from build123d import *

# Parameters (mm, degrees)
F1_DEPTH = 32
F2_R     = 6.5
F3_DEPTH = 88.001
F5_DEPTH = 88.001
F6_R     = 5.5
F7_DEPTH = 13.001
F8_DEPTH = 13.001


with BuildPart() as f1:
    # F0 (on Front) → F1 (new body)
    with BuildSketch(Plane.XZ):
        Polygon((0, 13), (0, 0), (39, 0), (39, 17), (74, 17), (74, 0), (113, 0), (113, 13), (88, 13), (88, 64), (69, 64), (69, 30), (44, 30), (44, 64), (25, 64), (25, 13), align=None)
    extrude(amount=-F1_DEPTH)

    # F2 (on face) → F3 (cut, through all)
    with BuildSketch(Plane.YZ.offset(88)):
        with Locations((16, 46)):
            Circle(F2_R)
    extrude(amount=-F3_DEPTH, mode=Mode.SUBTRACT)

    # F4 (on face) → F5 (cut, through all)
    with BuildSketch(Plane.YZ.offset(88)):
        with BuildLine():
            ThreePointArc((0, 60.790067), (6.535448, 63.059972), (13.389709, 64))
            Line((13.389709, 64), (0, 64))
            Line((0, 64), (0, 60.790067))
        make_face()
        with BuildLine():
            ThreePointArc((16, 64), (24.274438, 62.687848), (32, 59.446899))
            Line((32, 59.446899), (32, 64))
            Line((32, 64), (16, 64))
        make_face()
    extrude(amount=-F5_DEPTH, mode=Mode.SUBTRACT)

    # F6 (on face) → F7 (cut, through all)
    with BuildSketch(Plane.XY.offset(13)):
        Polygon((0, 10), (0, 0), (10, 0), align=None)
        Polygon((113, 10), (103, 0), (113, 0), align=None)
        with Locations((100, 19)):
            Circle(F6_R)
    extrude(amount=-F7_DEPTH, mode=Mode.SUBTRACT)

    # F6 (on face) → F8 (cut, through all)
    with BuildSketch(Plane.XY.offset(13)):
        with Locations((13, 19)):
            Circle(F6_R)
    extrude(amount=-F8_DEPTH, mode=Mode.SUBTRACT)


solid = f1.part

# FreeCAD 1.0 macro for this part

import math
import FreeCAD as App
import Part
import Sketcher
Q = App.Units.Quantity


def add_polygon(sketch, points):
    """Adds a closed chain of lines whose ends are joined by coincident constraints."""
    first, n = sketch.GeometryCount, len(points)
    for a, b in zip(points, points[1:] + points[:1]):
        sketch.addGeometry(Part.LineSegment(App.Vector(*a, 0), App.Vector(*b, 0)), False)
    for i in range(n):
        sketch.addConstraint(Sketcher.Constraint("Coincident", first + i, 2, first + (i + 1) % n, 1))

doc = App.newDocument("Part")
body = doc.addObject("PartDesign::Body", "Body")

# Sketch on XZ plane
sketch1 = body.newObject("Sketcher::SketchObject", "Sketch")
sketch1.AttachmentSupport = (doc.getObject("XZ_Plane"), [""])
sketch1.MapMode = "FlatFace"
add_polygon(sketch1, [(0, 13), (0, 0), (39, 0), (39, 17), (74, 17), (74, 0), (113, 0), (113, 13), (88, 13), (88, 64), (69, 64), (69, 30), (44, 30), (44, 64), (25, 64), (25, 13)])  # lines 0-15
sketch1.addConstraint([
    Sketcher.Constraint("Vertical", 0),
    Sketcher.Constraint("Horizontal", 1),
    Sketcher.Constraint("Vertical", 2),
    Sketcher.Constraint("Horizontal", 3),
    Sketcher.Constraint("Vertical", 4),
    Sketcher.Constraint("Horizontal", 5),
    Sketcher.Constraint("Vertical", 6),
    Sketcher.Constraint("Horizontal", 7),
    Sketcher.Constraint("Vertical", 8),
    Sketcher.Constraint("Horizontal", 9),
    Sketcher.Constraint("Vertical", 10),
    Sketcher.Constraint("Horizontal", 11),
    Sketcher.Constraint("Vertical", 12),
    Sketcher.Constraint("Horizontal", 13),
    Sketcher.Constraint("Vertical", 14),
    Sketcher.Constraint("Horizontal", 15),
    Sketcher.Constraint("Coincident", 0, 2, -1, 1),
    Sketcher.Constraint("PointOnObject", 4, 2, -1),
    Sketcher.Constraint("Horizontal", 9, 2, 12, 2),
    Sketcher.Constraint("Horizontal", 7, 2, 14, 2),
    Sketcher.Constraint("Equal", 1, 5),
    Sketcher.Constraint("Equal", 7, 11),
    Sketcher.Constraint("Equal", 9, 13),
    Sketcher.Constraint("Equal", 11, 15),
    Sketcher.Constraint("DistanceX", 1, 1, 1, 2, Q("39 mm")),
    Sketcher.Constraint("DistanceX", 3, 1, 3, 2, Q("35 mm")),
    Sketcher.Constraint("DistanceX", 7, 2, 7, 1, Q("25 mm")),
    Sketcher.Constraint("DistanceY", 0, 2, 0, 1, Q("13 mm")),
    Sketcher.Constraint("DistanceY", 2, 1, 2, 2, Q("17 mm")),
    Sketcher.Constraint("DistanceY", 8, 1, 8, 2, Q("51 mm")),
    Sketcher.Constraint("DistanceY", 10, 2, 10, 1, Q("34 mm")),
])
pad1 = body.newObject("PartDesign::Pad", "Pad")
pad1.Profile = sketch1
pad1.Length = 32
pad1.Reversed = True

# Sketch on YZ plane
sketch2 = body.newObject("Sketcher::SketchObject", "Sketch001")
sketch2.AttachmentSupport = (doc.getObject("YZ_Plane"), [""])
sketch2.MapMode = "FlatFace"
sketch2.AttachmentOffset = App.Placement(App.Vector(0, 0, 88), App.Rotation())
sketch2.addGeometry(Part.Circle(App.Vector(16, 46, 0), App.Vector(0, 0, 1), 6), False)
sketch2.addConstraint([
    Sketcher.Constraint("Diameter", 0, Q("13 mm")),
    Sketcher.Constraint("DistanceX", -1, 1, 0, 3, Q("16 mm")),
    Sketcher.Constraint("DistanceY", -1, 1, 0, 3, Q("46 mm")),
])
pocket1 = body.newObject("PartDesign::Pocket", "Pocket")
pocket1.Profile = sketch2
pocket1.Type = "ThroughAll"

# Sketch on YZ plane
sketch3 = body.newObject("Sketcher::SketchObject", "Sketch002")
sketch3.AttachmentSupport = (doc.getObject("YZ_Plane"), [""])
sketch3.MapMode = "FlatFace"
sketch3.AttachmentOffset = App.Placement(App.Vector(0, 0, 88), App.Rotation())
sketch3.addGeometry([
    Part.ArcOfCircle(Part.Circle(App.Vector(14.7, 29, 0), App.Vector(0, 0, 1), 35), math.radians(92), math.radians(115)),  # 0
    Part.LineSegment(App.Vector(13.4, 64, 0), App.Vector(0, 64, 0)),  # 1
    Part.LineSegment(App.Vector(0, 64, 0), App.Vector(0, 60.8, 0)),  # 2
    Part.ArcOfCircle(Part.Circle(App.Vector(14.7, 29, 0), App.Vector(0, 0, 1), 35), math.radians(60), math.radians(88)),  # 3
    Part.LineSegment(App.Vector(32, 59.4, 0), App.Vector(32, 64, 0)),  # 4
    Part.LineSegment(App.Vector(32, 64, 0), App.Vector(16, 64, 0)),  # 5
], False)
sketch3.addConstraint([
    Sketcher.Constraint("Coincident", 0, 1, 1, 1),
    Sketcher.Constraint("Coincident", 1, 2, 2, 1),
    Sketcher.Constraint("Coincident", 2, 2, 0, 2),
    Sketcher.Constraint("Coincident", 3, 1, 4, 1),
    Sketcher.Constraint("Coincident", 4, 2, 5, 1),
    Sketcher.Constraint("Coincident", 5, 2, 3, 2),
    Sketcher.Constraint("Horizontal", 1),
    Sketcher.Constraint("Vertical", 2),
    Sketcher.Constraint("Vertical", 4),
    Sketcher.Constraint("Horizontal", 5),
    Sketcher.Constraint("PointOnObject", 1, 2, -2),
    Sketcher.Constraint("Horizontal", 1, 2, 4, 2),
    Sketcher.Constraint("DistanceX", 5, 2, 5, 1, Q("16 mm")),
    Sketcher.Constraint("DistanceY", -1, 1, 0, 1, Q("64 mm")),
    Sketcher.Constraint("DistanceX", -1, 1, 3, 1, Q("32 mm")),
    Sketcher.Constraint("DistanceY", 4, 1, 4, 2, Q("4.553101 mm")),
    Sketcher.Constraint("Radius", 0, Q("35.000016 mm")),
    Sketcher.Constraint("Radius", 3, Q("34.999996 mm")),
    Sketcher.Constraint("DistanceX", 1, 2, 1, 1, Q("13.389709 mm")),
    Sketcher.Constraint("DistanceY", 2, 2, 2, 1, Q("3.209933 mm")),
])
pocket2 = body.newObject("PartDesign::Pocket", "Pocket001")
pocket2.Profile = sketch3
pocket2.Type = "ThroughAll"

# Sketch on XY plane
sketch4 = body.newObject("Sketcher::SketchObject", "Sketch003")
sketch4.AttachmentSupport = (doc.getObject("XY_Plane"), [""])
sketch4.MapMode = "FlatFace"
sketch4.AttachmentOffset = App.Placement(App.Vector(0, 0, 13), App.Rotation())
add_polygon(sketch4, [(0, 10), (0, 0), (10, 0)])  # lines 0-2
add_polygon(sketch4, [(113, 10), (103, 0), (113, 0)])  # lines 3-5
sketch4.addGeometry(Part.Circle(App.Vector(100, 19, 0), App.Vector(0, 0, 1), 6), False)  # 6
sketch4.addConstraint([
    Sketcher.Constraint("Vertical", 0),
    Sketcher.Constraint("Horizontal", 1),
    Sketcher.Constraint("Horizontal", 4),
    Sketcher.Constraint("Vertical", 5),
    Sketcher.Constraint("Coincident", 0, 2, -1, 1),
    Sketcher.Constraint("PointOnObject", 3, 2, -1),
    Sketcher.Constraint("Perpendicular", 2, 3),
    Sketcher.Constraint("Horizontal", 2, 2, 5, 2),
    Sketcher.Constraint("Equal", 1, 4),
    Sketcher.Constraint("Diameter", 6, Q("11 mm")),
    Sketcher.Constraint("DistanceX", 1, 1, 1, 2, Q("10 mm")),
    Sketcher.Constraint("DistanceX", -1, 1, 6, 3, Q("100 mm")),
    Sketcher.Constraint("DistanceY", -1, 1, 6, 3, Q("19 mm")),
    Sketcher.Constraint("DistanceX", -1, 1, 3, 2, Q("103 mm")),
])
pocket3 = body.newObject("PartDesign::Pocket", "Pocket002")
pocket3.Profile = sketch4
pocket3.Type = "ThroughAll"

# Sketch on XY plane
sketch5 = body.newObject("Sketcher::SketchObject", "Sketch004")
sketch5.AttachmentSupport = (doc.getObject("XY_Plane"), [""])
sketch5.MapMode = "FlatFace"
sketch5.AttachmentOffset = App.Placement(App.Vector(0, 0, 13), App.Rotation())
sketch5.addGeometry(Part.Circle(App.Vector(13, 19, 0), App.Vector(0, 0, 1), 6), False)
sketch5.addConstraint([
    Sketcher.Constraint("Diameter", 0, Q("11 mm")),
    Sketcher.Constraint("DistanceX", -1, 1, 0, 3, Q("13 mm")),
    Sketcher.Constraint("DistanceY", -1, 1, 0, 3, Q("19 mm")),
])
pocket4 = body.newObject("PartDesign::Pocket", "Pocket003")
pocket4.Profile = sketch5
pocket4.Type = "ThroughAll"

doc.recompute()
